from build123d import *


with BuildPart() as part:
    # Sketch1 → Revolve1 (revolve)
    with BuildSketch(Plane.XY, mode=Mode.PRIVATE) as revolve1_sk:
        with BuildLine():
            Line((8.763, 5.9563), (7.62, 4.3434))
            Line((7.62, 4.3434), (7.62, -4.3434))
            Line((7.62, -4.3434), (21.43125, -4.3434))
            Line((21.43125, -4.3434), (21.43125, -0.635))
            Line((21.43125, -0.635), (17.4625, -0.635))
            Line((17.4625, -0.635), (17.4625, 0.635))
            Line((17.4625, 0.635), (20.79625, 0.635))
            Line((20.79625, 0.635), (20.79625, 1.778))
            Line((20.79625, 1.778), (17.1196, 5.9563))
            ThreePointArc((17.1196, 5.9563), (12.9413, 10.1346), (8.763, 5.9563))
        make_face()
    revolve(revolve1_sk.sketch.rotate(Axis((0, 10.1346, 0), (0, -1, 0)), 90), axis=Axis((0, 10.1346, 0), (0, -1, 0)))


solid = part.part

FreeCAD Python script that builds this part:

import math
import FreeCAD as App
import Part
import Sketcher

V = App.Vector
Q = App.Units.Quantity

doc = App.newDocument("Part")
body = doc.addObject("PartDesign::Body", "Body")

sketch1 = body.newObject("Sketcher::SketchObject", "Sketch")
sketch1.AttachmentSupport = (doc.getObject("XY_Plane"), [""])
sketch1.MapMode = "FlatFace"
sketch1.addGeometry(Part.LineSegment(V(8.763, 5.9563, 0), V(7.62, 4.3434, 0)), False)
sketch1.addGeometry(Part.LineSegment(V(7.62, 4.3434, 0), V(7.62, -4.3434, 0)), False)
sketch1.addGeometry(Part.LineSegment(V(7.62, -4.3434, 0), V(21.43125, -4.3434, 0)), False)
sketch1.addGeometry(Part.LineSegment(V(21.43125, -4.3434, 0), V(21.43125, -0.635, 0)), False)
sketch1.addGeometry(Part.LineSegment(V(21.43125, -0.635, 0), V(17.4625, -0.635, 0)), False)
sketch1.addGeometry(Part.LineSegment(V(17.4625, -0.635, 0), V(17.4625, 0.635, 0)), False)
sketch1.addGeometry(Part.LineSegment(V(17.4625, 0.635, 0), V(20.79625, 0.635, 0)), False)
sketch1.addGeometry(Part.LineSegment(V(20.79625, 0.635, 0), V(20.79625, 1.778, 0)), False)
sketch1.addGeometry(Part.LineSegment(V(20.79625, 1.778, 0), V(17.1196, 5.9563, 0)), False)
sketch1.addGeometry(Part.ArcOfCircle(Part.Circle(V(12.9413, 5.9563, 0), V(0, 0, 1), 4.1783), math.radians(0), math.radians(180)), False)
sketch1.addConstraint(Sketcher.Constraint("Coincident", 0, 2, 1, 1))
sketch1.addConstraint(Sketcher.Constraint("Coincident", 1, 2, 2, 1))
sketch1.addConstraint(Sketcher.Constraint("Coincident", 2, 2, 3, 1))
sketch1.addConstraint(Sketcher.Constraint("Coincident", 3, 2, 4, 1))
sketch1.addConstraint(Sketcher.Constraint("Coincident", 4, 2, 5, 1))
sketch1.addConstraint(Sketcher.Constraint("Coincident", 5, 2, 6, 1))
sketch1.addConstraint(Sketcher.Constraint("Coincident", 6, 2, 7, 1))
sketch1.addConstraint(Sketcher.Constraint("Coincident", 7, 2, 8, 1))
sketch1.addConstraint(Sketcher.Constraint("Coincident", 8, 2, 9, 1))
sketch1.addConstraint(Sketcher.Constraint("Coincident", 9, 2, 0, 1))
sketch1.addConstraint(Sketcher.Constraint("Vertical", 1))
sketch1.addConstraint(Sketcher.Constraint("Horizontal", 2))
sketch1.addConstraint(Sketcher.Constraint("Vertical", 3))
sketch1.addConstraint(Sketcher.Constraint("Horizontal", 4))
sketch1.addConstraint(Sketcher.Constraint("Vertical", 5))
sketch1.addConstraint(Sketcher.Constraint("Horizontal", 6))
sketch1.addConstraint(Sketcher.Constraint("Vertical", 7))
sketch1.addConstraint(Sketcher.Constraint("Horizontal", 9, 3, 8, 2))
sketch1.addConstraint(Sketcher.Constraint("Horizontal", 8, 2, 9, 2))
sketch1.addConstraint(Sketcher.Constraint("DistanceY", 5, 1, 5, 2, Q("0.05 in")))
sketch1.addConstraint(Sketcher.Constraint("DistanceX", -1, 1, 0, 2, Q("0.3 in")))
sketch1.addConstraint(Sketcher.Constraint("Radius", 9, Q("0.1645 in")))
sketch1.addConstraint(Sketcher.Constraint("DistanceX", 4, 2, 4, 1, Q("0.15625 in")))
sketch1.addConstraint(Sketcher.Constraint("DistanceY", 1, 2, 1, 1, Q("0.342 in")))
sketch1.addConstraint(Sketcher.Constraint("DistanceY", 3, 1, 3, 2, Q("0.146 in")))
sketch1.addConstraint(Sketcher.Constraint("DistanceY", 7, 1, 7, 2, Q("0.045 in")))
sketch1.addConstraint(Sketcher.Constraint("DistanceY", -1, 1, 7, 2, Q("0.07 in")))
sketch1.addConstraint(Sketcher.Constraint("DistanceX", -1, 1, 2, 2, Q("0.84375 in")))
sketch1.addConstraint(Sketcher.Constraint("DistanceX", -1, 1, 8, 2, Q("0.674 in")))
sketch1.addConstraint(Sketcher.Constraint("DistanceX", 6, 2, 3, 2, Q("0.025 in")))
sketch1.addConstraint(Sketcher.Constraint("DistanceY", -1, 1, 9, 3, Q("0.2345 in")))
revolution = body.newObject("PartDesign::Revolution", "Revolution")
revolution.Profile = sketch1
revolution.ReferenceAxis = (sketch1, ["V_Axis"])
revolution.Angle = 360

doc.recompute()
